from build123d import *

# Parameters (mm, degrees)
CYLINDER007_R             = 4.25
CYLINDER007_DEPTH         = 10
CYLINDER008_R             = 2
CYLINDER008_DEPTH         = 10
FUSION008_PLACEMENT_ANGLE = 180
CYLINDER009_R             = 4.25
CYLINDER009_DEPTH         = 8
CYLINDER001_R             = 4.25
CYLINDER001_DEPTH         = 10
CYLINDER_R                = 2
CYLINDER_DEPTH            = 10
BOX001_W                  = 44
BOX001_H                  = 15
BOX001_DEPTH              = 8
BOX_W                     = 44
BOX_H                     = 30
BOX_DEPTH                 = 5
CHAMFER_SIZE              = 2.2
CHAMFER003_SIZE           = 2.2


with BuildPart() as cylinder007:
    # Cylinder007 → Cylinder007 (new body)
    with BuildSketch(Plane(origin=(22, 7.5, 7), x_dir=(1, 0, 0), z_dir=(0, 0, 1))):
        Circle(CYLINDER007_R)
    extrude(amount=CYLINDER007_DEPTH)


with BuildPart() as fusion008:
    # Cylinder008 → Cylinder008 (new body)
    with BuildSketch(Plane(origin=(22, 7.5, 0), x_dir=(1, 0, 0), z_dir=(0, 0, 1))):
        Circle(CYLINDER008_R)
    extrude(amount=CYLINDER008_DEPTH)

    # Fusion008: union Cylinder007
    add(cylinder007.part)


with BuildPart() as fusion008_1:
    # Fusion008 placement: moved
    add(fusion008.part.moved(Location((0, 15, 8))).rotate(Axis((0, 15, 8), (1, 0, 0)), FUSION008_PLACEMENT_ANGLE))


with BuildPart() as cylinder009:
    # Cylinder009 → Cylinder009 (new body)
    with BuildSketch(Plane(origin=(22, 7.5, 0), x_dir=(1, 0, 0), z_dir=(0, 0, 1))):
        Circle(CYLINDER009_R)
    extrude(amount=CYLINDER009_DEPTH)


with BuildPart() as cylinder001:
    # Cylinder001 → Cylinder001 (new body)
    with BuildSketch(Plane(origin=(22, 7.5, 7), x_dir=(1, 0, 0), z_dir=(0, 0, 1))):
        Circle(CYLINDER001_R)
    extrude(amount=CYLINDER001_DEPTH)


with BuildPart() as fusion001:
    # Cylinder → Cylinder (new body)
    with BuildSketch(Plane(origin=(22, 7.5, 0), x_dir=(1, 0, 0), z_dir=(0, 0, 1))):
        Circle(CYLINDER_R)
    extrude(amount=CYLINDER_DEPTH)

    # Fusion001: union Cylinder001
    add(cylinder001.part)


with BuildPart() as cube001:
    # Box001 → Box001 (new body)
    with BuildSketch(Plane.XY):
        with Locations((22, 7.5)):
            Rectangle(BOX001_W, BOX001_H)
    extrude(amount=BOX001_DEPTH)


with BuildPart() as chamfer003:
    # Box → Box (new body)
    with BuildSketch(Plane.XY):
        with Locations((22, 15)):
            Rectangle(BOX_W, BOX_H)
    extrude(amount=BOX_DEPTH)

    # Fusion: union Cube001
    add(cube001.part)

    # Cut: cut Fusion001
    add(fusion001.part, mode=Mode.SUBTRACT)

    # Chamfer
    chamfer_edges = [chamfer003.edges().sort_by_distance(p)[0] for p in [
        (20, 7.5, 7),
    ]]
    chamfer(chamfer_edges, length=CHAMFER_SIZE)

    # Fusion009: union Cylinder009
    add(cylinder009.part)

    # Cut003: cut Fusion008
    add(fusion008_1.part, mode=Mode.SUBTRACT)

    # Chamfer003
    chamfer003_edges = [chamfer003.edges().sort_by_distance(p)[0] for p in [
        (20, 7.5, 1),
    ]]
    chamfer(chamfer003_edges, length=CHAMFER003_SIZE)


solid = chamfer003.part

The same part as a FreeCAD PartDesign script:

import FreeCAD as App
import Part
import Sketcher


def edges_at(feature, points):
    """Names of the edges that pass closest to the given points."""
    edges = feature.Shape.Edges
    near = lambda p: min(range(len(edges)), key=lambda i: edges[i].distToShape(Part.Vertex(*p))[0])
    return sorted({f"Edge{near(p) + 1}" for p in points})


def add_polygon(sketch, points):
    """Adds a closed chain of lines whose ends are joined by coincident constraints."""
    first, n = sketch.GeometryCount, len(points)
    for a, b in zip(points, points[1:] + points[:1]):
        sketch.addGeometry(Part.LineSegment(App.Vector(*a, 0), App.Vector(*b, 0)), False)
    for i in range(n):
        sketch.addConstraint(Sketcher.Constraint("Coincident", first + i, 2, first + (i + 1) % n, 1))

doc = App.newDocument("Part")
body = doc.addObject("PartDesign::Body", "Body")

sketch1 = body.newObject("Sketcher::SketchObject", "Sketch")
sketch1.AttachmentSupport = (doc.getObject("XY_Plane"), [""])
sketch1.MapMode = "FlatFace"
sketch1.AttachmentOffset = App.Placement(App.Vector(0, 0, 7), App.Rotation())
sketch1.addGeometry(Part.Circle(App.Vector(22, 7.5, 0), App.Vector(0, 0, 1), 4.2), False)
sketch1.addConstraint(Sketcher.Constraint("Diameter", 0, 8.5))
sketch1.addConstraint(Sketcher.Constraint("DistanceX", -1, 1, 0, 3, 22.0))
sketch1.addConstraint(Sketcher.Constraint("DistanceY", -1, 1, 0, 3, 7.5))
pad1 = body.newObject("PartDesign::Pad", "Pad")
pad1.Profile = sketch1
pad1.Length = 10
body2 = doc.addObject("PartDesign::Body", "Body001")

sketch2 = body2.newObject("Sketcher::SketchObject", "Sketch001")
sketch2.AttachmentSupport = (doc.getObject("XY_Plane001"), [""])
sketch2.MapMode = "FlatFace"
sketch2.addGeometry(Part.Circle(App.Vector(22, 7.5, 0), App.Vector(0, 0, 1), 2), False)
sketch2.addConstraint(Sketcher.Constraint("Diameter", 0, 4.0))
sketch2.addConstraint(Sketcher.Constraint("DistanceX", -1, 1, 0, 3, 22.0))
sketch2.addConstraint(Sketcher.Constraint("DistanceY", -1, 1, 0, 3, 7.5))
pad2 = body2.newObject("PartDesign::Pad", "Pad001")
pad2.Profile = sketch2
pad2.Length = 10
doc.recompute()

boolean = body2.newObject("PartDesign::Boolean", "Boolean")
boolean.Type = "Fuse"
boolean.addObjects([body])
body3 = doc.addObject("PartDesign::Body", "Body002")
doc.recompute()

body2.Placement = App.Placement(App.Vector(0, 15, 8), App.Rotation(App.Vector(1, 0, 0), 180))
boolean2 = body3.newObject("PartDesign::Boolean", "Boolean001")
boolean2.Type = "Fuse"
boolean2.addObjects([body2])
body4 = doc.addObject("PartDesign::Body", "Body003")

sketch3 = body4.newObject("Sketcher::SketchObject", "Sketch002")
sketch3.AttachmentSupport = (doc.getObject("XY_Plane003"), [""])
sketch3.MapMode = "FlatFace"
sketch3.addGeometry(Part.Circle(App.Vector(22, 7.5, 0), App.Vector(0, 0, 1), 4.2), False)
sketch3.addConstraint(Sketcher.Constraint("Diameter", 0, 8.5))
sketch3.addConstraint(Sketcher.Constraint("DistanceX", -1, 1, 0, 3, 22.0))
sketch3.addConstraint(Sketcher.Constraint("DistanceY", -1, 1, 0, 3, 7.5))
pad3 = body4.newObject("PartDesign::Pad", "Pad002")
pad3.Profile = sketch3
pad3.Length = 8
body5 = doc.addObject("PartDesign::Body", "Body004")

sketch4 = body5.newObject("Sketcher::SketchObject", "Sketch003")
sketch4.AttachmentSupport = (doc.getObject("XY_Plane004"), [""])
sketch4.MapMode = "FlatFace"
sketch4.AttachmentOffset = App.Placement(App.Vector(0, 0, 7), App.Rotation())
sketch4.addGeometry(Part.Circle(App.Vector(22, 7.5, 0), App.Vector(0, 0, 1), 4.2), False)
sketch4.addConstraint(Sketcher.Constraint("Diameter", 0, 8.5))
sketch4.addConstraint(Sketcher.Constraint("DistanceX", -1, 1, 0, 3, 22.0))
sketch4.addConstraint(Sketcher.Constraint("DistanceY", -1, 1, 0, 3, 7.5))
pad4 = body5.newObject("PartDesign::Pad", "Pad003")
pad4.Profile = sketch4
pad4.Length = 10
body6 = doc.addObject("PartDesign::Body", "Body005")

sketch5 = body6.newObject("Sketcher::SketchObject", "Sketch004")
sketch5.AttachmentSupport = (doc.getObject("XY_Plane005"), [""])
sketch5.MapMode = "FlatFace"
sketch5.addGeometry(Part.Circle(App.Vector(22, 7.5, 0), App.Vector(0, 0, 1), 2), False)
sketch5.addConstraint(Sketcher.Constraint("Diameter", 0, 4.0))
sketch5.addConstraint(Sketcher.Constraint("DistanceX", -1, 1, 0, 3, 22.0))
sketch5.addConstraint(Sketcher.Constraint("DistanceY", -1, 1, 0, 3, 7.5))
pad5 = body6.newObject("PartDesign::Pad", "Pad004")
pad5.Profile = sketch5
pad5.Length = 10
doc.recompute()

boolean3 = body6.newObject("PartDesign::Boolean", "Boolean002")
boolean3.Type = "Fuse"
boolean3.addObjects([body5])
body7 = doc.addObject("PartDesign::Body", "Body006")

sketch6 = body7.newObject("Sketcher::SketchObject", "Sketch005")
sketch6.AttachmentSupport = (doc.getObject("XY_Plane006"), [""])
sketch6.MapMode = "FlatFace"
add_polygon(sketch6, [(0, 15), (0, 0), (44, 0), (44, 15)])
sketch6.addConstraint(Sketcher.Constraint("Vertical", 0))
sketch6.addConstraint(Sketcher.Constraint("Horizontal", 1))
sketch6.addConstraint(Sketcher.Constraint("Vertical", 2))
sketch6.addConstraint(Sketcher.Constraint("Horizontal", 3))
sketch6.addConstraint(Sketcher.Constraint("Coincident", 0, 2, -1, 1))
sketch6.addConstraint(Sketcher.Constraint("DistanceX", 1, 1, 1, 2, 44.0))
sketch6.addConstraint(Sketcher.Constraint("DistanceY", 0, 2, 0, 1, 15.0))
pad6 = body7.newObject("PartDesign::Pad", "Pad005")
pad6.Profile = sketch6
pad6.Length = 8
body8 = doc.addObject("PartDesign::Body", "Body007")

sketch7 = body8.newObject("Sketcher::SketchObject", "Sketch006")
sketch7.AttachmentSupport = (doc.getObject("XY_Plane007"), [""])
sketch7.MapMode = "FlatFace"
add_polygon(sketch7, [(0, 30), (0, 0), (44, 0), (44, 30)])
sketch7.addConstraint(Sketcher.Constraint("Vertical", 0))
sketch7.addConstraint(Sketcher.Constraint("Horizontal", 1))
sketch7.addConstraint(Sketcher.Constraint("Vertical", 2))
sketch7.addConstraint(Sketcher.Constraint("Horizontal", 3))
sketch7.addConstraint(Sketcher.Constraint("Coincident", 0, 2, -1, 1))
sketch7.addConstraint(Sketcher.Constraint("DistanceX", 1, 1, 1, 2, 44.0))
sketch7.addConstraint(Sketcher.Constraint("DistanceY", 0, 2, 0, 1, 30.0))
pad7 = body8.newObject("PartDesign::Pad", "Pad006")
pad7.Profile = sketch7
pad7.Length = 5
doc.recompute()

boolean4 = body8.newObject("PartDesign::Boolean", "Boolean003")
boolean4.Type = "Fuse"
boolean4.addObjects([body7])
doc.recompute()

boolean5 = body8.newObject("PartDesign::Boolean", "Boolean004")
boolean5.Type = "Cut"
boolean5.addObjects([body6])
doc.recompute()

chamfer = body8.newObject("PartDesign::Chamfer", "Chamfer")
chamfer.Base = (boolean5, edges_at(boolean5, [(20, 7.5, 7)]))
chamfer.Size = 2.2
doc.recompute()

boolean6 = body8.newObject("PartDesign::Boolean", "Boolean005")
boolean6.Type = "Fuse"
boolean6.addObjects([body4])
doc.recompute()

boolean7 = body8.newObject("PartDesign::Boolean", "Boolean006")
boolean7.Type = "Cut"
boolean7.addObjects([body3])
doc.recompute()

chamfer2 = body8.newObject("PartDesign::Chamfer", "Chamfer001")
chamfer2.Base = (boolean7, edges_at(boolean7, [(20, 7.5, 1)]))
chamfer2.Size = 2.2

doc.recompute()
